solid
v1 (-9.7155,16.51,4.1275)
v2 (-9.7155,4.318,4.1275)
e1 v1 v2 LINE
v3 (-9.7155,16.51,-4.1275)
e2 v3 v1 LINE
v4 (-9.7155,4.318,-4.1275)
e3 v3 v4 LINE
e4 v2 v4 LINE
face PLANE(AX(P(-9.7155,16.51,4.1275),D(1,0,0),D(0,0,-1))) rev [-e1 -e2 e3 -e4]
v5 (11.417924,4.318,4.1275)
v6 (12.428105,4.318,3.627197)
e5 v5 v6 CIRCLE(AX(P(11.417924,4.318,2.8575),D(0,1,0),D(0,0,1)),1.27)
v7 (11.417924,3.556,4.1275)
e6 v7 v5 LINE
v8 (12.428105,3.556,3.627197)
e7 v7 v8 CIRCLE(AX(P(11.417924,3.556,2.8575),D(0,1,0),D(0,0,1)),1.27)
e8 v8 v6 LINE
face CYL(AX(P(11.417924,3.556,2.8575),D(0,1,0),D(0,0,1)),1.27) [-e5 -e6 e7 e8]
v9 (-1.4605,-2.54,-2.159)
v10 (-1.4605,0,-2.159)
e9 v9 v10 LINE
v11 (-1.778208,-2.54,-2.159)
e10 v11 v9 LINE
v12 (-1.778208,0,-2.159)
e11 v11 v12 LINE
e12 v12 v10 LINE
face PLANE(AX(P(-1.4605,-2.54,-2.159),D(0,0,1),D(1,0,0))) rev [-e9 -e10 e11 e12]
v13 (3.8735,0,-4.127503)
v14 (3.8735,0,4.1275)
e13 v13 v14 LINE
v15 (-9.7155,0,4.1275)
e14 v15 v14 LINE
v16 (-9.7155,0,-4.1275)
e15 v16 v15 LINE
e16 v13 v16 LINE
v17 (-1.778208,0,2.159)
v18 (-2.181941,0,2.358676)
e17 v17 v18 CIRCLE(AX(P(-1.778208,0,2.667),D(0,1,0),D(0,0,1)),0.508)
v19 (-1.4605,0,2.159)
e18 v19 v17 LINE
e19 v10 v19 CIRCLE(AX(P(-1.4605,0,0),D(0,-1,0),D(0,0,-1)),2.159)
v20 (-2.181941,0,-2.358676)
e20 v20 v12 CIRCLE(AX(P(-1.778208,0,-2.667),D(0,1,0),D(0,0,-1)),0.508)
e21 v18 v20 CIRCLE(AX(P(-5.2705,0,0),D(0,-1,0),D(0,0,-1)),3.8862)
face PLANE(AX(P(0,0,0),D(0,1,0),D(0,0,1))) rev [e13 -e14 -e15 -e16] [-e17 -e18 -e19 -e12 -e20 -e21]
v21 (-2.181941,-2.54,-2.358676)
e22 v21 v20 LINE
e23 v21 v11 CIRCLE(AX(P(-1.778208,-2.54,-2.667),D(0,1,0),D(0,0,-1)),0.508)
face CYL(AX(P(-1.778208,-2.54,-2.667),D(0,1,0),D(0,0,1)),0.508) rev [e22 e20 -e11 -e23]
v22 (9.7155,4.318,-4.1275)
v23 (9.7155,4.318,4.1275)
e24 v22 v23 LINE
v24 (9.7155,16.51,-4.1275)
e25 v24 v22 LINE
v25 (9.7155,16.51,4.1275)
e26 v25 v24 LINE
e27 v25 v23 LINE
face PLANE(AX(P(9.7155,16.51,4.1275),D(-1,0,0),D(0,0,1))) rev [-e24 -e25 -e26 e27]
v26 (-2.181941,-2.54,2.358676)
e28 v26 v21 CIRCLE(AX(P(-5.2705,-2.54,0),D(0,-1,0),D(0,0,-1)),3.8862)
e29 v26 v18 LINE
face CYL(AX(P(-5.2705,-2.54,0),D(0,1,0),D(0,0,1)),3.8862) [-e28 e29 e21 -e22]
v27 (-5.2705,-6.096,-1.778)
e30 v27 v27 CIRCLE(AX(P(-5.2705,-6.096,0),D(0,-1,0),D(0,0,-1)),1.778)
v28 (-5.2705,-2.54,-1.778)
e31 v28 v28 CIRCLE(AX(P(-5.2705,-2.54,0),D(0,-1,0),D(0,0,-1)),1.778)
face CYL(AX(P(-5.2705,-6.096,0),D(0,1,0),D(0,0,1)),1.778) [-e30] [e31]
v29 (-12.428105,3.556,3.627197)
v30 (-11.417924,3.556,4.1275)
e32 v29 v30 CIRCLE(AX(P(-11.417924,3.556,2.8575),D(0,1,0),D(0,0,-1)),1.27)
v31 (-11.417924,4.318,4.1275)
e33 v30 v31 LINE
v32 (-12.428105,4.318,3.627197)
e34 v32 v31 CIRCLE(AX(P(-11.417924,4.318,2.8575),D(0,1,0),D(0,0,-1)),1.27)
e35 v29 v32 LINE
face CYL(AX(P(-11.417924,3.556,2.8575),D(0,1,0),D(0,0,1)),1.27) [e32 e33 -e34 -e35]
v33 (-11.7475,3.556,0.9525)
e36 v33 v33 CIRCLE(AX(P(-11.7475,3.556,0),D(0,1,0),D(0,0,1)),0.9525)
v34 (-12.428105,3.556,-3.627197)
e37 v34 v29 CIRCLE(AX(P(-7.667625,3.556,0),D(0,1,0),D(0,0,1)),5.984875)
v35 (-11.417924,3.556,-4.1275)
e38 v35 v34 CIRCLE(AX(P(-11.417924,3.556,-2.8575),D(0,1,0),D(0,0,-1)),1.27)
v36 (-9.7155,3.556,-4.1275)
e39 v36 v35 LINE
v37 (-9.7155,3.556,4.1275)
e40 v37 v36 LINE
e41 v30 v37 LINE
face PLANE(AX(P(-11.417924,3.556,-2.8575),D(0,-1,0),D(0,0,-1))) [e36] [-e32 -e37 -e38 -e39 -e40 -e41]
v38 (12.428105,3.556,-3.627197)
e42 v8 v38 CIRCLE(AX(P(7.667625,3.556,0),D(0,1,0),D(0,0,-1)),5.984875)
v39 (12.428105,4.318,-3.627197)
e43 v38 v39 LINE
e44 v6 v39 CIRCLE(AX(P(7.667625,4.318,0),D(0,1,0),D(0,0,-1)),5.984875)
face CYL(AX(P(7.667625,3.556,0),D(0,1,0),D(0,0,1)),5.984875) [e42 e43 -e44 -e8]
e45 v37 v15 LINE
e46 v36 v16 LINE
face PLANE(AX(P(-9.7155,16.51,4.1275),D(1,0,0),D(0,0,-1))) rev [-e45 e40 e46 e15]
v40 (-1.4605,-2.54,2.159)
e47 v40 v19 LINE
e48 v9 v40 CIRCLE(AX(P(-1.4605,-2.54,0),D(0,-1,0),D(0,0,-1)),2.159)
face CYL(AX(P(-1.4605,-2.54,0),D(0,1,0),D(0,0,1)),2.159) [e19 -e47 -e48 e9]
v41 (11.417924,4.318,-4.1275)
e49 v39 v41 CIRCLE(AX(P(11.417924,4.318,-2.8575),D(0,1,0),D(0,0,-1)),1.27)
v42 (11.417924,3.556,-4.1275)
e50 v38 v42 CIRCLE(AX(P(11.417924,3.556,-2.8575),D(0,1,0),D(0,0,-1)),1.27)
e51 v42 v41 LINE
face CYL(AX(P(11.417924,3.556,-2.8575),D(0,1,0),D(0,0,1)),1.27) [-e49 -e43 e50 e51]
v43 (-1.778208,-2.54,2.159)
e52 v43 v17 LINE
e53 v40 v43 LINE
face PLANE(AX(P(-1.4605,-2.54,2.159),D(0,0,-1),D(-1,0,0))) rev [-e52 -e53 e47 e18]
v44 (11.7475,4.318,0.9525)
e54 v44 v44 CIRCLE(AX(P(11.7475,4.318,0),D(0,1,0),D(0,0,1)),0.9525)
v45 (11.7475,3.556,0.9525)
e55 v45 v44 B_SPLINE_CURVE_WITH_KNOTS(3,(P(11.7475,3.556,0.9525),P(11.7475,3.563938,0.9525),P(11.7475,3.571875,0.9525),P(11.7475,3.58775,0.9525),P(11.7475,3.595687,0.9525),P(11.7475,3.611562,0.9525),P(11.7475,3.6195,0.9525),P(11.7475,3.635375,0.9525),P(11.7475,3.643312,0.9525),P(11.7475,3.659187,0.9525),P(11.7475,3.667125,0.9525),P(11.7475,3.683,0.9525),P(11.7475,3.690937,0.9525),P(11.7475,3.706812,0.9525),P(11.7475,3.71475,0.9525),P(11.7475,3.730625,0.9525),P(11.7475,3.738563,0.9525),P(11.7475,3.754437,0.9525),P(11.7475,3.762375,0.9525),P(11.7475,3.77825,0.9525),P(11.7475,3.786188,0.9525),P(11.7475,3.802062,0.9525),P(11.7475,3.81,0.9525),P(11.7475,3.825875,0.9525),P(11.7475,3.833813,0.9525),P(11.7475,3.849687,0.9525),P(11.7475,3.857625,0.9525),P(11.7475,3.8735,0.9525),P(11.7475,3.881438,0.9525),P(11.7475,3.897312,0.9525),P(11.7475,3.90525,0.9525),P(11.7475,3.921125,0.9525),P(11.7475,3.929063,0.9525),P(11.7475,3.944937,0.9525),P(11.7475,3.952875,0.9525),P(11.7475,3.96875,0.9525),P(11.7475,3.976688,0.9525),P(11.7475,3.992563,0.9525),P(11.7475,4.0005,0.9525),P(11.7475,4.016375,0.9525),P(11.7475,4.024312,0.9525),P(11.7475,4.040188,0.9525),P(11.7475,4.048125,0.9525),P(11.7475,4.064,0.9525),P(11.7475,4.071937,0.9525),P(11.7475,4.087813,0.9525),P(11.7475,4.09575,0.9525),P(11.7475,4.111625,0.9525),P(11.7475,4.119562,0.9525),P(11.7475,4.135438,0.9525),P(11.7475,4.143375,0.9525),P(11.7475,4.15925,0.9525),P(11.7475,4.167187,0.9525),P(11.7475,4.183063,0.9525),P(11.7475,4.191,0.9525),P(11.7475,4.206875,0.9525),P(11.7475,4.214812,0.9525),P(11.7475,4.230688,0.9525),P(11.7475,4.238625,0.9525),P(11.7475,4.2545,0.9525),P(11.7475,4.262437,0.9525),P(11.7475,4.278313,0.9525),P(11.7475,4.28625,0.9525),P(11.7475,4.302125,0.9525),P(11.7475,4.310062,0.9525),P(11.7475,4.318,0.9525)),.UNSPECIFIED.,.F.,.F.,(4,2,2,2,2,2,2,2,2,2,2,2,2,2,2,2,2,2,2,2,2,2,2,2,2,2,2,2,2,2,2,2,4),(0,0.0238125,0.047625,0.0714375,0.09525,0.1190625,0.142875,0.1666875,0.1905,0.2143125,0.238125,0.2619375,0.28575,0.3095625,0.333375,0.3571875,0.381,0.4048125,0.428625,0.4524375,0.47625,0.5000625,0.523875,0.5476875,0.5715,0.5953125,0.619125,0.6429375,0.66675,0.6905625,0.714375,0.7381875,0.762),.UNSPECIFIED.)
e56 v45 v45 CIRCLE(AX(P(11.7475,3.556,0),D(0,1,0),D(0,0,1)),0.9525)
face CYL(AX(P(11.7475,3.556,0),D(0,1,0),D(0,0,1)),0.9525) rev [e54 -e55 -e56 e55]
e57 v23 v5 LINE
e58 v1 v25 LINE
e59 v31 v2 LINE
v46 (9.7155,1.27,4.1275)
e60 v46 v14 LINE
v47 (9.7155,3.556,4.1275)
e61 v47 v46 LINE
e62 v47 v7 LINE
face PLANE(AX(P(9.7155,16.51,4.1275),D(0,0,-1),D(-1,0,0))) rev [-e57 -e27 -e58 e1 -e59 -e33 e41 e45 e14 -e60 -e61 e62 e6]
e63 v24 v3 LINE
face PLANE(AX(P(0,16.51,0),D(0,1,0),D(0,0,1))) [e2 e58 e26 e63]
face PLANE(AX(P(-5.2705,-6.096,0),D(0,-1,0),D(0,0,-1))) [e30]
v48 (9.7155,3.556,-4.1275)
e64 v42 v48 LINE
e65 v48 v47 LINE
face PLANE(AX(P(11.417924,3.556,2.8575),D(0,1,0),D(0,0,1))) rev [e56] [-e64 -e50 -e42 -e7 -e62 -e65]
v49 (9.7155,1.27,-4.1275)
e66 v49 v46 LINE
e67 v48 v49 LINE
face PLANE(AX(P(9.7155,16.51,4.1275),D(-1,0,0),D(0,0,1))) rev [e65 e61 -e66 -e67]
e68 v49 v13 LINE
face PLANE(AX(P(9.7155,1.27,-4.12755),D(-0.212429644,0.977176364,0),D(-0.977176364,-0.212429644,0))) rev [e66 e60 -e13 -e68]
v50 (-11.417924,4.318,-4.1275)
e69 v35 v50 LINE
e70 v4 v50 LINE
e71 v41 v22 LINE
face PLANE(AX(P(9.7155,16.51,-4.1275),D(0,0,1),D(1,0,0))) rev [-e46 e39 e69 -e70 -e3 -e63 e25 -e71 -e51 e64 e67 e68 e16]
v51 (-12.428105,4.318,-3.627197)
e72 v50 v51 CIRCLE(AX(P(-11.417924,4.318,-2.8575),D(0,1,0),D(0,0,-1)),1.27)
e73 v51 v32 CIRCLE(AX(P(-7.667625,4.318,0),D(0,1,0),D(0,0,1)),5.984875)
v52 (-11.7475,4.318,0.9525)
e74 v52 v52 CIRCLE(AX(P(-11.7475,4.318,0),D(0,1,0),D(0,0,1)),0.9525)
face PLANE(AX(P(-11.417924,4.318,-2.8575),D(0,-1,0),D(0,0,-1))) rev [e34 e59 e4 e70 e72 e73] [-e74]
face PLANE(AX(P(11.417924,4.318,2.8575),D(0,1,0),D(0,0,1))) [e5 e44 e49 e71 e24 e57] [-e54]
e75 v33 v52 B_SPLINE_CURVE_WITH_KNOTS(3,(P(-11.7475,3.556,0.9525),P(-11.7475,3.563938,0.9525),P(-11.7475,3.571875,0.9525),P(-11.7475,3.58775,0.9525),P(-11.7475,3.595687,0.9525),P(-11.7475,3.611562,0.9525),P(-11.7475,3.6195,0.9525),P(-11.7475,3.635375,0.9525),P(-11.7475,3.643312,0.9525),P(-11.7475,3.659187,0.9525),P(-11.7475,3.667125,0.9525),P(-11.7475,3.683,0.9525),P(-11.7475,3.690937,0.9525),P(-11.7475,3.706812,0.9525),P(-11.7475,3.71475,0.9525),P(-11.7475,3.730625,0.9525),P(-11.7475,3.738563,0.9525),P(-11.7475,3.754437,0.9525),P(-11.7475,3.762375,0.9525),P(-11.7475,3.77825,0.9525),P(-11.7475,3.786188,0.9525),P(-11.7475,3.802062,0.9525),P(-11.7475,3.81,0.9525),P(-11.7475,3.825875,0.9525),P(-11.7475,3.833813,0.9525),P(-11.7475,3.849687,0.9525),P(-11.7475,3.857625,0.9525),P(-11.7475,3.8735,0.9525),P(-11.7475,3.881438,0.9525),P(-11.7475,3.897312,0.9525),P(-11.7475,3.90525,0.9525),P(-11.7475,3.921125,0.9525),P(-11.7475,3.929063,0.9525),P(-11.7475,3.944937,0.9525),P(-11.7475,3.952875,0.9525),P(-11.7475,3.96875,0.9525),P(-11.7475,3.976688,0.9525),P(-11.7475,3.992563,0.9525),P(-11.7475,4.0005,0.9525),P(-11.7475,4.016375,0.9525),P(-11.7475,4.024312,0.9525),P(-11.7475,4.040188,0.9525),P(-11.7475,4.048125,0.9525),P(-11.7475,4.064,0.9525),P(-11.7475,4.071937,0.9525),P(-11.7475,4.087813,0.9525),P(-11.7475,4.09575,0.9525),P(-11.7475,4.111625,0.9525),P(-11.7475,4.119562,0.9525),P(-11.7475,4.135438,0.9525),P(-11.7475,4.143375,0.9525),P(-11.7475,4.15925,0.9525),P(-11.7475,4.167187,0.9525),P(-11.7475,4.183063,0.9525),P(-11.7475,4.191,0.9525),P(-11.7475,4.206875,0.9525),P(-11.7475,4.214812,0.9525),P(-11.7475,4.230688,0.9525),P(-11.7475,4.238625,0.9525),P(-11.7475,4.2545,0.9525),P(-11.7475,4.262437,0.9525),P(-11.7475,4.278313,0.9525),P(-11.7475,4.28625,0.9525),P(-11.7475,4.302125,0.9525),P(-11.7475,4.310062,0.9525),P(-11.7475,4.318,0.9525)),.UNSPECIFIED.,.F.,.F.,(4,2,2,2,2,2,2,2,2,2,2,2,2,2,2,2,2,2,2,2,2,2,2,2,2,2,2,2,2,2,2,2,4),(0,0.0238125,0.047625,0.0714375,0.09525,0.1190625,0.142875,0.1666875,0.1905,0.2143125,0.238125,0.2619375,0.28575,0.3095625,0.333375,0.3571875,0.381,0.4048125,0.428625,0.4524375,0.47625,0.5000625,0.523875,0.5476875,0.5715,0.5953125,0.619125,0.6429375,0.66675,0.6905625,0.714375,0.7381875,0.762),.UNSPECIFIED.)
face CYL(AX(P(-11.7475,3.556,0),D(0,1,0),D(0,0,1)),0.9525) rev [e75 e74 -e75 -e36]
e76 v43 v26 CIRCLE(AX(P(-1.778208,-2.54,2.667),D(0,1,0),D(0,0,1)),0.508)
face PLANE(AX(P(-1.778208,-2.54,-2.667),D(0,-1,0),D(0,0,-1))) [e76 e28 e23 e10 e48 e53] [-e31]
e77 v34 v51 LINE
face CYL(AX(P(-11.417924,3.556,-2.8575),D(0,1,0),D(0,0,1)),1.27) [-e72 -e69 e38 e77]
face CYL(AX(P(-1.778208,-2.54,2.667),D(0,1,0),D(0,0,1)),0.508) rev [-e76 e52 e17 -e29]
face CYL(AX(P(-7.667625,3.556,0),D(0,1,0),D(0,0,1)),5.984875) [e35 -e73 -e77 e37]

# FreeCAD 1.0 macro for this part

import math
import FreeCAD as App
import Part
import Sketcher

V = App.Vector
Q = App.Units.Quantity

doc = App.newDocument("Part")
body = doc.addObject("PartDesign::Body", "Body")

# Sketch on XZ plane
sketch1 = body.newObject("Sketcher::SketchObject", "Sketch")
sketch1.AttachmentSupport = (doc.getObject("XZ_Plane"), [""])
sketch1.MapMode = "FlatFace"
sketch1.addGeometry(Part.LineSegment(V(-10, -4, 0), V(-10, 4, 0)), False)
sketch1.addGeometry(Part.LineSegment(V(-10, 4, 0), V(10, 4, 0)), False)
sketch1.addGeometry(Part.LineSegment(V(10, 4, 0), V(10, -4, 0)), False)
sketch1.addGeometry(Part.LineSegment(V(10, -4, 0), V(-10, -4, 0)), False)
sketch1.addConstraint(Sketcher.Constraint("Coincident", 0, 2, 1, 1))
sketch1.addConstraint(Sketcher.Constraint("Coincident", 1, 2, 2, 1))
sketch1.addConstraint(Sketcher.Constraint("Coincident", 2, 2, 3, 1))
sketch1.addConstraint(Sketcher.Constraint("Coincident", 3, 2, 0, 1))
sketch1.addConstraint(Sketcher.Constraint("Vertical", 0))
sketch1.addConstraint(Sketcher.Constraint("Horizontal", 1))
sketch1.addConstraint(Sketcher.Constraint("Vertical", 2))
sketch1.addConstraint(Sketcher.Constraint("Horizontal", 3))
sketch1.addConstraint(Sketcher.Constraint("Symmetric", 0, 2, 2, 2, -1, 1))
sketch1.addConstraint(Sketcher.Constraint("DistanceX", 1, 1, 1, 2, Q("0.765 in")))
sketch1.addConstraint(Sketcher.Constraint("DistanceY", 0, 1, 0, 2, Q("0.325 in")))
pad1 = body.newObject("PartDesign::Pad", "Pad")
pad1.Profile = sketch1
pad1.Length = Q("0.65 in")
pad1.Reversed = True

# Sketch on XZ plane
sketch2 = body.newObject("Sketcher::SketchObject", "Sketch001")
sketch2.AttachmentSupport = (doc.getObject("XZ_Plane"), [""])
sketch2.MapMode = "FlatFace"
sketch2.AttachmentOffset = App.Placement(V(0, 0, -0.17 * 25.4), App.Rotation())
sketch2.addGeometry(Part.LineSegment(V(9.7, -4.1, 0), V(9.7, 4.1, 0)), False)
sketch2.addGeometry(Part.LineSegment(V(9.7, 4.1, 0), V(11.4, 4.1, 0)), False)
sketch2.addGeometry(Part.ArcOfCircle(Part.Circle(V(11.4, 2.9, 0), V(0, 0, 1), 1.3), math.radians(37), math.radians(90)), False)
sketch2.addGeometry(Part.ArcOfCircle(Part.Circle(V(7.7, 0, 0), V(0, 0, 1), 6), math.radians(-37), math.radians(37)), False)
sketch2.addGeometry(Part.ArcOfCircle(Part.Circle(V(11.4, -2.9, 0), V(0, 0, 1), 1.3), math.radians(-90), math.radians(-37)), False)
sketch2.addGeometry(Part.LineSegment(V(11.4, -4.1, 0), V(9.7, -4.1, 0)), False)
sketch2.addGeometry(Part.Circle(V(11.7, 0, 0), V(0, 0, 1), 1), False)
sketch2.addGeometry(Part.LineSegment(V(-9.7, 4.1, 0), V(-9.7, -4.1, 0)), False)
sketch2.addGeometry(Part.LineSegment(V(-9.7, -4.1, 0), V(-11.4, -4.1, 0)), False)
sketch2.addGeometry(Part.ArcOfCircle(Part.Circle(V(-11.4, -2.9, 0), V(0, 0, 1), 1.3), math.radians(-143), math.radians(-90)), False)
sketch2.addGeometry(Part.ArcOfCircle(Part.Circle(V(-7.7, 0, 0), V(0, 0, 1), 6), math.radians(143), math.radians(217)), False)
sketch2.addGeometry(Part.ArcOfCircle(Part.Circle(V(-11.4, 2.9, 0), V(0, 0, 1), 1.3), math.radians(90), math.radians(143)), False)
sketch2.addGeometry(Part.LineSegment(V(-11.4, 4.1, 0), V(-9.7, 4.1, 0)), False)
sketch2.addGeometry(Part.Circle(V(-11.7, 0, 0), V(0, 0, 1), 1), False)
sketch2.addConstraint(Sketcher.Constraint("Coincident", 0, 2, 1, 1))
sketch2.addConstraint(Sketcher.Constraint("Tangent", 1, 2, 2, 2))
sketch2.addConstraint(Sketcher.Constraint("Tangent", 2, 1, 3, 2))
sketch2.addConstraint(Sketcher.Constraint("Tangent", 3, 1, 4, 2))
sketch2.addConstraint(Sketcher.Constraint("Tangent", 4, 1, 5, 1))
sketch2.addConstraint(Sketcher.Constraint("Coincident", 5, 2, 0, 1))
sketch2.addConstraint(Sketcher.Constraint("Coincident", 7, 2, 8, 1))
sketch2.addConstraint(Sketcher.Constraint("Tangent", 8, 2, 9, 2))
sketch2.addConstraint(Sketcher.Constraint("Tangent", 9, 1, 10, 2))
sketch2.addConstraint(Sketcher.Constraint("Tangent", 10, 1, 11, 2))
sketch2.addConstraint(Sketcher.Constraint("Tangent", 11, 1, 12, 1))
sketch2.addConstraint(Sketcher.Constraint("Coincident", 12, 2, 7, 1))
sketch2.addConstraint(Sketcher.Constraint("Vertical", 0))
sketch2.addConstraint(Sketcher.Constraint("Horizontal", 1))
sketch2.addConstraint(Sketcher.Constraint("Horizontal", 5))
sketch2.addConstraint(Sketcher.Constraint("Vertical", 7))
sketch2.addConstraint(Sketcher.Constraint("Horizontal", 8))
sketch2.addConstraint(Sketcher.Constraint("Horizontal", 12))
sketch2.addConstraint(Sketcher.Constraint("Equal", 2, 4))
sketch2.addConstraint(Sketcher.Constraint("Equal", 4, 9))
sketch2.addConstraint(Sketcher.Constraint("Equal", 3, 10))
sketch2.addConstraint(Sketcher.Constraint("Equal", 9, 11))
sketch2.addConstraint(Sketcher.Constraint("Equal", 6, 13))
sketch2.addConstraint(Sketcher.Constraint("Symmetric", 2, 3, 9, 3, -1, 1))
sketch2.addConstraint(Sketcher.Constraint("Symmetric", 4, 3, 11, 3, -1, 1))
sketch2.addConstraint(Sketcher.Constraint("Symmetric", 6, 3, 13, 3, -1, 1))
sketch2.addConstraint(Sketcher.Constraint("Symmetric", 4, 3, 9, 3, -2))
sketch2.addConstraint(Sketcher.Constraint("PointOnObject", 6, 3, -1))
sketch2.addConstraint(Sketcher.Constraint("Equal", 5, 8))
sketch2.addConstraint(Sketcher.Constraint("Radius", 2, Q("0.05 in")))
sketch2.addConstraint(Sketcher.Constraint("Diameter", 6, Q("0.075 in")))
sketch2.addConstraint(Sketcher.Constraint("DistanceY", 0, 1, 0, 2, Q("0.325 in")))
sketch2.addConstraint(Sketcher.Constraint("DistanceX", 0, 2, 6, 3, Q("0.08 in")))
sketch2.addConstraint(Sketcher.Constraint("DistanceX", -1, 1, 6, 3, Q("0.4625 in")))
sketch2.addConstraint(Sketcher.Constraint("Radius", 3, Q("5.984875 mm")))
sketch2.addConstraint(Sketcher.Constraint("DistanceX", 1, 1, 1, 2, Q("1.702424 mm")))
pad2 = body.newObject("PartDesign::Pad", "Pad001")
pad2.Profile = sketch2
pad2.Length = Q("0.03 in")

# Sketch on XY plane
sketch3 = body.newObject("Sketcher::SketchObject", "Sketch002")
sketch3.AttachmentSupport = (doc.getObject("XY_Plane"), [""])
sketch3.MapMode = "FlatFace"
sketch3.AttachmentOffset = App.Placement(V(0, 0, 0.1625 * 25.4), App.Rotation())
sketch3.addGeometry(Part.LineSegment(V(3.9, 0, 0), V(9.7, 0, 0)), False)
sketch3.addGeometry(Part.LineSegment(V(9.7, 0, 0), V(9.7, 1.3, 0)), False)
sketch3.addGeometry(Part.LineSegment(V(9.7, 1.3, 0), V(3.9, 0, 0)), False)
sketch3.addConstraint(Sketcher.Constraint("Coincident", 0, 2, 1, 1))
sketch3.addConstraint(Sketcher.Constraint("Coincident", 1, 2, 2, 1))
sketch3.addConstraint(Sketcher.Constraint("Coincident", 2, 2, 0, 1))
sketch3.addConstraint(Sketcher.Constraint("Horizontal", 0))
sketch3.addConstraint(Sketcher.Constraint("Vertical", 1))
sketch3.addConstraint(Sketcher.Constraint("PointOnObject", 0, 2, -1))
sketch3.addConstraint(Sketcher.Constraint("DistanceX", 0, 1, 0, 2, Q("0.23 in")))
sketch3.addConstraint(Sketcher.Constraint("DistanceY", 1, 1, 1, 2, Q("0.05 in")))
sketch3.addConstraint(Sketcher.Constraint("DistanceX", -1, 1, 0, 2, Q("0.3825 in")))
pocket1 = body.newObject("PartDesign::Pocket", "Pocket")
pocket1.Profile = sketch3
pocket1.Type = "ThroughAll"

# Sketch on XZ plane
sketch4 = body.newObject("Sketcher::SketchObject", "Sketch003")
sketch4.AttachmentSupport = (doc.getObject("XZ_Plane"), [""])
sketch4.MapMode = "FlatFace"
sketch4.addGeometry(Part.LineSegment(V(-1.46, 2.16, 0), V(-1.78, 2.16, 0)), False)
sketch4.addGeometry(Part.ArcOfCircle(Part.Circle(V(-1.78, 2.67, 0), V(0, 0, 1), 0.51), math.radians(-143), math.radians(-90)), False)
sketch4.addGeometry(Part.ArcOfCircle(Part.Circle(V(-5.27, 0, 0), V(0, 0, 1), 3.89), math.radians(37), math.radians(323)), False)
sketch4.addGeometry(Part.ArcOfCircle(Part.Circle(V(-1.78, -2.67, 0), V(0, 0, 1), 0.51), math.radians(90), math.radians(143)), False)
sketch4.addGeometry(Part.LineSegment(V(-1.78, -2.16, 0), V(-1.46, -2.16, 0)), False)
sketch4.addGeometry(Part.ArcOfCircle(Part.Circle(V(-1.46, 0, 0), V(0, 0, 1), 2.16), math.radians(-90), math.radians(90)), False)
sketch4.addConstraint(Sketcher.Constraint("Tangent", 0, 2, 1, 2))
sketch4.addConstraint(Sketcher.Constraint("Tangent", 1, 1, 2, 1))
sketch4.addConstraint(Sketcher.Constraint("Tangent", 2, 2, 3, 2))
sketch4.addConstraint(Sketcher.Constraint("Tangent", 3, 1, 4, 1))
sketch4.addConstraint(Sketcher.Constraint("Tangent", 4, 2, 5, 1))
sketch4.addConstraint(Sketcher.Constraint("Tangent", 5, 2, 0, 1))
sketch4.addConstraint(Sketcher.Constraint("Horizontal", 0))
sketch4.addConstraint(Sketcher.Constraint("Horizontal", 4))
sketch4.addConstraint(Sketcher.Constraint("Equal", 1, 3))
sketch4.addConstraint(Sketcher.Constraint("Symmetric", 1, 3, 3, 3, -1))
sketch4.addConstraint(Sketcher.Constraint("Radius", 1, Q("0.02 in")))
sketch4.addConstraint(Sketcher.Constraint("Radius", 2, Q("0.153 in")))
sketch4.addConstraint(Sketcher.Constraint("Radius", 5, Q("0.085 in")))
sketch4.addConstraint(Sketcher.Constraint("DistanceX", 2, 3, 5, 3, Q("0.15 in")))
sketch4.addConstraint(Sketcher.Constraint("DistanceX", 2, 3, -1, 1, Q("0.2075 in")))
pad3 = body.newObject("PartDesign::Pad", "Pad002")
pad3.Profile = sketch4
pad3.Length = Q("0.1 in")

# Sketch on XZ plane
sketch5 = body.newObject("Sketcher::SketchObject", "Sketch004")
sketch5.AttachmentSupport = (doc.getObject("XZ_Plane"), [""])
sketch5.MapMode = "FlatFace"
sketch5.AttachmentOffset = App.Placement(V(0, 0, 0.1 * 25.4), App.Rotation())
sketch5.addGeometry(Part.Circle(V(-5.3, 0, 0), V(0, 0, 1), 1.8), False)
sketch5.addConstraint(Sketcher.Constraint("PointOnObject", 0, 3, -1))
sketch5.addConstraint(Sketcher.Constraint("Diameter", 0, Q("0.14 in")))
sketch5.addConstraint(Sketcher.Constraint("DistanceX", 0, 3, -1, 1, Q("0.2075 in")))
pad4 = body.newObject("PartDesign::Pad", "Pad003")
pad4.Profile = sketch5
pad4.Length = Q("0.14 in")

doc.recompute()
